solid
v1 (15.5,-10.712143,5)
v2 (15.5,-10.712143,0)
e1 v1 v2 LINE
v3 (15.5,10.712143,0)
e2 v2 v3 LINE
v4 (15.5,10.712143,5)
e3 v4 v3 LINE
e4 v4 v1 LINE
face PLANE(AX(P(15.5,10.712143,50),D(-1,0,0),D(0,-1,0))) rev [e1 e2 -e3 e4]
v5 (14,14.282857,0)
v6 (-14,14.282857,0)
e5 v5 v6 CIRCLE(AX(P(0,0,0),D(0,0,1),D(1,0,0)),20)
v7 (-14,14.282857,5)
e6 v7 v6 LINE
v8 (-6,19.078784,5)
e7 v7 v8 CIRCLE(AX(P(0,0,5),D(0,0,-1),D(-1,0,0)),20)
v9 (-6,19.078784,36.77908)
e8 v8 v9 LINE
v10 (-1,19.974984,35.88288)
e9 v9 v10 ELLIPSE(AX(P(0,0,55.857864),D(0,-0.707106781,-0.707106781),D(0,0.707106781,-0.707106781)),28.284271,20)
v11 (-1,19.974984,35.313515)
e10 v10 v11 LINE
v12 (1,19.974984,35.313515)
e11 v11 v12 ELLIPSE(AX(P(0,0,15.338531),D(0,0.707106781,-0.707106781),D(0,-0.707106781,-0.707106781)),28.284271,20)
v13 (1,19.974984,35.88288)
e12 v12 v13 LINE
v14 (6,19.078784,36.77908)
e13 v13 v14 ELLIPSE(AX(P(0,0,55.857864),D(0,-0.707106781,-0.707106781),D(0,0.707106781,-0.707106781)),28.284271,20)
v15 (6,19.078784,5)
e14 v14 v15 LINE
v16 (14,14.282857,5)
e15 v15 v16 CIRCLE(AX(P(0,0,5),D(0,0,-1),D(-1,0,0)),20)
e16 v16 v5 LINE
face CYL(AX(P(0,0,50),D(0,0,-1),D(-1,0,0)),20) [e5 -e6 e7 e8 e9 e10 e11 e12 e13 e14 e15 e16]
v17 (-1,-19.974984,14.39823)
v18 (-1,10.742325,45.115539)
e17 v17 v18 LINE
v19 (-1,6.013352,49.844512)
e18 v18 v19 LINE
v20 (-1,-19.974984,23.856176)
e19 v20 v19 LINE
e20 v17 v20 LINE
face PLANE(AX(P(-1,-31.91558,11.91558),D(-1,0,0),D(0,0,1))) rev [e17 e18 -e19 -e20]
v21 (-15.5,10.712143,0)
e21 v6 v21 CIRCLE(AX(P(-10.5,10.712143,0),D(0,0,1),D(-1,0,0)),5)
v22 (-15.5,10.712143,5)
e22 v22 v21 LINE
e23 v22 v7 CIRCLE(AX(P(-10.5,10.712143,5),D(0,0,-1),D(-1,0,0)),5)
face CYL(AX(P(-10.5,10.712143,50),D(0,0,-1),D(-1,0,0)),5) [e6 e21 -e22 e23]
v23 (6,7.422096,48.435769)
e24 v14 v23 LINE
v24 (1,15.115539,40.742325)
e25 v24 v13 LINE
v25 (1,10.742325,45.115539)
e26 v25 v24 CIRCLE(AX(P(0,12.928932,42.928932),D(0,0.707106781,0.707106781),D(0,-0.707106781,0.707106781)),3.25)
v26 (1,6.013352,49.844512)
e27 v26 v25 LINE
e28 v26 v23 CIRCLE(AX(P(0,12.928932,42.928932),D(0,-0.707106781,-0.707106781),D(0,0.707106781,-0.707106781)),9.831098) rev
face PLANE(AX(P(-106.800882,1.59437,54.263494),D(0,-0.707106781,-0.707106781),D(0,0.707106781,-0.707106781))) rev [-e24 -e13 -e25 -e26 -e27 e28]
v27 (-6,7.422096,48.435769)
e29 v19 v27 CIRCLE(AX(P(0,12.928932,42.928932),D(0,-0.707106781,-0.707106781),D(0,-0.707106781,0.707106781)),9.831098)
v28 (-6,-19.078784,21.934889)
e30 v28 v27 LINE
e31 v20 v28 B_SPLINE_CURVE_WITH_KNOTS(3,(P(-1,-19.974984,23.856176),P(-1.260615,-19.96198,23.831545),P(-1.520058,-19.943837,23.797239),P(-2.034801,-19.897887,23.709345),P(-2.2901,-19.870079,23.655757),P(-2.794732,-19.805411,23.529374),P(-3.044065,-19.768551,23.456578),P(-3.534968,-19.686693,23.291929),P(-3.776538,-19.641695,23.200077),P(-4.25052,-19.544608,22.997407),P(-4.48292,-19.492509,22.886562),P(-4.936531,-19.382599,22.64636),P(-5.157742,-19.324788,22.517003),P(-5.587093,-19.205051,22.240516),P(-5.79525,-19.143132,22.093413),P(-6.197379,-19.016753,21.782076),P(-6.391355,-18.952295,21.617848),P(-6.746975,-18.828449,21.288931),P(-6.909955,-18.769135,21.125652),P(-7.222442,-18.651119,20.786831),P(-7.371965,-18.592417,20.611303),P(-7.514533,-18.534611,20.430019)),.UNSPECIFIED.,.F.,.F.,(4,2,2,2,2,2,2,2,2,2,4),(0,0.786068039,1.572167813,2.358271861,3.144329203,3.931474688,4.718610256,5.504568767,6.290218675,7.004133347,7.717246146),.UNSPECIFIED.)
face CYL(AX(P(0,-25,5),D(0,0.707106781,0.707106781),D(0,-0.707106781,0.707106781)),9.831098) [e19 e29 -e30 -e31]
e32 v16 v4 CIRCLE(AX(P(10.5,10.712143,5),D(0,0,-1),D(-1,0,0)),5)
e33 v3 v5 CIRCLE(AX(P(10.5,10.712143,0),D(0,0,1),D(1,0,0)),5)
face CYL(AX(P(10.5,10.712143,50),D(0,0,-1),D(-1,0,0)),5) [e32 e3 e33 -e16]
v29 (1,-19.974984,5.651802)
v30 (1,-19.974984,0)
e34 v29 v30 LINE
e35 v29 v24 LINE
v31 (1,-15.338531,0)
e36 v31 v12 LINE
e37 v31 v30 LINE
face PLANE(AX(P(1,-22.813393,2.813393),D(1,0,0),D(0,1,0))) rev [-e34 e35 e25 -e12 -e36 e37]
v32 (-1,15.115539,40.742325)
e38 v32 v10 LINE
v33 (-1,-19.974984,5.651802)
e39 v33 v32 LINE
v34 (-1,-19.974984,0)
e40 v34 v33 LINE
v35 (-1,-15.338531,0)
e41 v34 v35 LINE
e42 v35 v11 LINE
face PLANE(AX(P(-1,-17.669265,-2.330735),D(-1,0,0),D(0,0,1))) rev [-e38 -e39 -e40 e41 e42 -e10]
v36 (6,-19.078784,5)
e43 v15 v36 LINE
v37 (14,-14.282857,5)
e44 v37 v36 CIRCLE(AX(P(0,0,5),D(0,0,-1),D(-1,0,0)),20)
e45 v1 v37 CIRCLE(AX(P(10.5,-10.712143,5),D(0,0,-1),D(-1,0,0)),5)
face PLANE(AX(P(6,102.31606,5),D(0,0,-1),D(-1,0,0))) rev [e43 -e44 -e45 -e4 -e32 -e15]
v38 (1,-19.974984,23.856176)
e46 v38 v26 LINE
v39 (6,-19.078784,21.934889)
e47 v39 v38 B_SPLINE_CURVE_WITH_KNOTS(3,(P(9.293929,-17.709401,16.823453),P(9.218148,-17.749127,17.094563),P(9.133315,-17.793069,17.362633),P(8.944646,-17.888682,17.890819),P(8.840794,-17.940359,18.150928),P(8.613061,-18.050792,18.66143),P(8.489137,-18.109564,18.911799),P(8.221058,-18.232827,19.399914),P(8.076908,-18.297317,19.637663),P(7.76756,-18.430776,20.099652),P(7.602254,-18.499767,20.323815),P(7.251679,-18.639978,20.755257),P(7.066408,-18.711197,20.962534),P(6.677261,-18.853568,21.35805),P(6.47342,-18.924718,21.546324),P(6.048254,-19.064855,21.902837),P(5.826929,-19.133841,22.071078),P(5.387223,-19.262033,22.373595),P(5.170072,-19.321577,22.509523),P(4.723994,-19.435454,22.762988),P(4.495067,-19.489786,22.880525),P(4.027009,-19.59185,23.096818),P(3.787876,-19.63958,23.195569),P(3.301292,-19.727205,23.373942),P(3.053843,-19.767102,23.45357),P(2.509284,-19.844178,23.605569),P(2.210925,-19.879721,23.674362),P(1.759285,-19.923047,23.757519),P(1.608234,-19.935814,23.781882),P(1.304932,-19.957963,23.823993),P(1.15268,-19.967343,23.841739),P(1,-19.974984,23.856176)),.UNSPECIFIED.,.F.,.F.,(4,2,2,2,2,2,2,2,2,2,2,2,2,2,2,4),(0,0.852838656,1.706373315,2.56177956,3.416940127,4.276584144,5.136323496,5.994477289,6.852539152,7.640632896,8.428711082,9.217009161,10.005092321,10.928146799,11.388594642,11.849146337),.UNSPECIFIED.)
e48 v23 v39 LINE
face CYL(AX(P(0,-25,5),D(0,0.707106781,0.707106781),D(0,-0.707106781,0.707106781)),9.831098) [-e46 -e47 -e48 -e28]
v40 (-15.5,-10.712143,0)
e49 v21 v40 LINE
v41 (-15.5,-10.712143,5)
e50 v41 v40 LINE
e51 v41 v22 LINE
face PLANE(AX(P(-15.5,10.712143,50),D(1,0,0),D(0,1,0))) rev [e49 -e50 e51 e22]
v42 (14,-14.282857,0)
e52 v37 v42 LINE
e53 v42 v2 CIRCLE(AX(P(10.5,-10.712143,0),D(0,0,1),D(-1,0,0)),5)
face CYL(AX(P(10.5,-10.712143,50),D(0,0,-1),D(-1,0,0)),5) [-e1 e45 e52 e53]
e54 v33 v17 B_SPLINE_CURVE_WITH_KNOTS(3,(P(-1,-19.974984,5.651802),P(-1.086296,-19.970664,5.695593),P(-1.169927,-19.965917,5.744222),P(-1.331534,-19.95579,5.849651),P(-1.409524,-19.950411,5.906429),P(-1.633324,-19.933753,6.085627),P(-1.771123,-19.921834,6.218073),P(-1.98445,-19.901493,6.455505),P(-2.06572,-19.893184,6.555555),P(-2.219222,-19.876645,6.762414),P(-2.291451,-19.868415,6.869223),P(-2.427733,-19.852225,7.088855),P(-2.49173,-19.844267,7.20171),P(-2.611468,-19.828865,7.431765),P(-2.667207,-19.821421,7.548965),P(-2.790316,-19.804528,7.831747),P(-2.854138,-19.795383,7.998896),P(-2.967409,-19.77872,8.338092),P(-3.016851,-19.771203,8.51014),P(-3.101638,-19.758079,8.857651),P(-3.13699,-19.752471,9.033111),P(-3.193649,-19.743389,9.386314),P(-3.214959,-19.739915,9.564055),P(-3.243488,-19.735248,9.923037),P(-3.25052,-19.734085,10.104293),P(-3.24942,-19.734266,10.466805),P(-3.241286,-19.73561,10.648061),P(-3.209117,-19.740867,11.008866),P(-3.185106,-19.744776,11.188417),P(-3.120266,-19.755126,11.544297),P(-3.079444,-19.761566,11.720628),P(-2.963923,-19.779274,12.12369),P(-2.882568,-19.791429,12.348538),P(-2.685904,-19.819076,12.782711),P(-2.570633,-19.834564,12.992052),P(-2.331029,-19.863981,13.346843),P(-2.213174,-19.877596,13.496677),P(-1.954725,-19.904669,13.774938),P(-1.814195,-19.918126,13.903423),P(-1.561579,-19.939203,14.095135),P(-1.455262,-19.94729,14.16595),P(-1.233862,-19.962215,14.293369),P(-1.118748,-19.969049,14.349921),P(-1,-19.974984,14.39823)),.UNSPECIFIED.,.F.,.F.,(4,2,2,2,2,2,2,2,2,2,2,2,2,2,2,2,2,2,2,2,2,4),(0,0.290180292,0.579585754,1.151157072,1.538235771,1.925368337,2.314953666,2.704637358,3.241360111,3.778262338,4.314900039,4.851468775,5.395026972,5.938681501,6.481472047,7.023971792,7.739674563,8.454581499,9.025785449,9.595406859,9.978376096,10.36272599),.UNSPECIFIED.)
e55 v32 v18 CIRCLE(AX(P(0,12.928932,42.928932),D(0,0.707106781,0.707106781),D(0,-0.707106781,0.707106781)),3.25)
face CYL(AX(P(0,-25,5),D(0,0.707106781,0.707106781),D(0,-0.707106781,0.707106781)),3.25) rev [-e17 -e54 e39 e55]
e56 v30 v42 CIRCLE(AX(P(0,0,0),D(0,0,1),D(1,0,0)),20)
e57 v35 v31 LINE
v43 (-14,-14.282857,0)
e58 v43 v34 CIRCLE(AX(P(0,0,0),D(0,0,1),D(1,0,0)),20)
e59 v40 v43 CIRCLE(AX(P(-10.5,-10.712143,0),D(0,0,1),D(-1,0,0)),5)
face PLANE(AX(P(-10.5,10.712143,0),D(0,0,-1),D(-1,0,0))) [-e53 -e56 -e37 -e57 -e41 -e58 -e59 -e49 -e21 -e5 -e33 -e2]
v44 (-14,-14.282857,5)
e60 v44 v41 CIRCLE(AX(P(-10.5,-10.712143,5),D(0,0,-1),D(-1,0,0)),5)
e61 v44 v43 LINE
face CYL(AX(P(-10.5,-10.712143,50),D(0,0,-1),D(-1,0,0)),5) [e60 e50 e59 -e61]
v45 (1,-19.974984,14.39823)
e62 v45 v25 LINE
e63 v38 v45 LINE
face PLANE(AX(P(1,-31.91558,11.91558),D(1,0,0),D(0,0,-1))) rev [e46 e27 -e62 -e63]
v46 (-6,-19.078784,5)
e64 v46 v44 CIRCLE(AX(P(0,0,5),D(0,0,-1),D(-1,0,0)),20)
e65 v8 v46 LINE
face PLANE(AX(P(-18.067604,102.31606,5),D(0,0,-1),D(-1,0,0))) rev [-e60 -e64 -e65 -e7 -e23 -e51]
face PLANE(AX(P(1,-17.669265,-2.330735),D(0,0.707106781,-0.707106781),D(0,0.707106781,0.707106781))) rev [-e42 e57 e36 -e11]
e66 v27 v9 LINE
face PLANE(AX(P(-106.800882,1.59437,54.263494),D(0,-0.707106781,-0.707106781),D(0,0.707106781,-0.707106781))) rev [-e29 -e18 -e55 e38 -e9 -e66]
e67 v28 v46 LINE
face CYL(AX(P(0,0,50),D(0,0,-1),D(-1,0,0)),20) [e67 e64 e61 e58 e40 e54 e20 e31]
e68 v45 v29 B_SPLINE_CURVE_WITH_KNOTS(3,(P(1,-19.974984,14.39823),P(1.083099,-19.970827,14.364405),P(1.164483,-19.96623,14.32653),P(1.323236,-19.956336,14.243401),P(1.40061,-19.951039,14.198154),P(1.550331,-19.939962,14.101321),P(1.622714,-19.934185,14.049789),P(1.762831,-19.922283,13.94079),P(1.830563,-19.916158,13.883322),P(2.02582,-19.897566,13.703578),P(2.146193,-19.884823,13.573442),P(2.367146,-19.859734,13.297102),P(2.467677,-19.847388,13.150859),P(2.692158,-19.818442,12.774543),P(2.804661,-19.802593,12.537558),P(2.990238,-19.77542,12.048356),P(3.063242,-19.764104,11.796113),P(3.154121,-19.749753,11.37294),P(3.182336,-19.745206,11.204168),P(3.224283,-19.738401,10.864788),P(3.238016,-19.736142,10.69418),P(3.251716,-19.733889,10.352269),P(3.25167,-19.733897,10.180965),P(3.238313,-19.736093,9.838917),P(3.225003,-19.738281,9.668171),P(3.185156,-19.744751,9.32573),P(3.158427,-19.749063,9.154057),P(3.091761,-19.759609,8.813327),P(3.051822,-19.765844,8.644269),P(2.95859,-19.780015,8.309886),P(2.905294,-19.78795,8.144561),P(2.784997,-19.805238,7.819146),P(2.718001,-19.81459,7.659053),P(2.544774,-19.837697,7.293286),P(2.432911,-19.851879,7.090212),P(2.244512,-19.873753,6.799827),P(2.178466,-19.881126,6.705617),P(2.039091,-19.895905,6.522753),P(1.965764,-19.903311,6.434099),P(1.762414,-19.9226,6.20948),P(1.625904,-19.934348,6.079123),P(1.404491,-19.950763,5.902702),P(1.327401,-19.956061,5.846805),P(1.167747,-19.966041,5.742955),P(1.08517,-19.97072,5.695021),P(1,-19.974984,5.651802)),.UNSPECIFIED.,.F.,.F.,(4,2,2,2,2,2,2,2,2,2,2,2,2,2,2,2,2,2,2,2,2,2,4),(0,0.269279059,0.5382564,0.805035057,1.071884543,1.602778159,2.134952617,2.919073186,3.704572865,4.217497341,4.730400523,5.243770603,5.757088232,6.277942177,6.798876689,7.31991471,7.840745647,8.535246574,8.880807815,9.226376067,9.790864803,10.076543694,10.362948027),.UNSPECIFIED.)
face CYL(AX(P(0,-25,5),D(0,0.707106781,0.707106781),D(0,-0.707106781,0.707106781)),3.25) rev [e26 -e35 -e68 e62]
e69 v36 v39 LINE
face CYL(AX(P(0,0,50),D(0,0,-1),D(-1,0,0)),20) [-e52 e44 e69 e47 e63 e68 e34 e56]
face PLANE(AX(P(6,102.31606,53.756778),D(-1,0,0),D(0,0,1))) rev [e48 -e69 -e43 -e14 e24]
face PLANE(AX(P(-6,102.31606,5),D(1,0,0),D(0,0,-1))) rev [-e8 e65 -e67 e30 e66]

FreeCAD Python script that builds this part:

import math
import FreeCAD as App
import Part
import Sketcher
Q = App.Units.Quantity

doc = App.newDocument("Part")
body = doc.addObject("PartDesign::Body", "Body")

# Sketch on XY plane
sketch1 = doc.addObject("Sketcher::SketchObject", "Sketch")
body.addObject(sketch1)
sketch1.AttachmentSupport = (doc.XY_Plane, [""])
sketch1.MapMode = "FlatFace"
sketch1.addGeometry([
    Part.LineSegment(App.Vector(-15.5, 10.7, 0), App.Vector(-15.5, -10.7, 0)),  # 0
    Part.ArcOfCircle(Part.Circle(App.Vector(-10.5, -10.7, 0), App.Vector(0, 0, 1), 5), math.radians(180), math.radians(226)),  # 1
    Part.ArcOfCircle(Part.Circle(App.Vector(0, 0, 0), App.Vector(0, 0, 1), 20), math.radians(-134), math.radians(-46)),  # 2
    Part.ArcOfCircle(Part.Circle(App.Vector(10.5, -10.7, 0), App.Vector(0, 0, 1), 5), math.radians(-46), math.radians(0)),  # 3
    Part.LineSegment(App.Vector(15.5, -10.7, 0), App.Vector(15.5, 10.7, 0)),  # 4
    Part.ArcOfCircle(Part.Circle(App.Vector(10.5, 10.7, 0), App.Vector(0, 0, 1), 5), math.radians(0), math.radians(46)),  # 5
    Part.ArcOfCircle(Part.Circle(App.Vector(0, 0, 0), App.Vector(0, 0, 1), 20), math.radians(46), math.radians(134)),  # 6
    Part.ArcOfCircle(Part.Circle(App.Vector(-10.5, 10.7, 0), App.Vector(0, 0, 1), 5), math.radians(134), math.radians(180)),  # 7
], False)
sketch1.addConstraint([
    Sketcher.Constraint("Tangent", 0, 2, 1, 1),
    Sketcher.Constraint("Tangent", 1, 2, 2, 1),
    Sketcher.Constraint("Tangent", 2, 2, 3, 1),
    Sketcher.Constraint("Tangent", 3, 2, 4, 1),
    Sketcher.Constraint("Tangent", 4, 2, 5, 1),
    Sketcher.Constraint("Tangent", 5, 2, 6, 1),
    Sketcher.Constraint("Tangent", 6, 2, 7, 1),
    Sketcher.Constraint("Tangent", 7, 2, 0, 1),
    Sketcher.Constraint("Vertical", 0),
    Sketcher.Constraint("Vertical", 4),
    Sketcher.Constraint("Coincident", 2, 3, -1, 1),
    Sketcher.Constraint("Coincident", 6, 3, -1, 1),
    Sketcher.Constraint("Equal", 1, 3),
    Sketcher.Constraint("Equal", 3, 5),
    Sketcher.Constraint("Equal", 2, 6),
    Sketcher.Constraint("Equal", 5, 7),
    Sketcher.Constraint("Horizontal", 1, 3, 3, 3),
    Sketcher.Constraint("Radius", 1, Q("5 mm")),
    Sketcher.Constraint("Radius", 2, Q("20 mm")),
    Sketcher.Constraint("DistanceX", 1, 2, -1, 1, Q("14 mm")),
])
pad1 = doc.addObject("PartDesign::Pad", "Pad")
body.addObject(pad1)
pad1.Profile = sketch1
pad1.Length = 50

# Sketch on XZ plane
sketch2 = doc.addObject("Sketcher::SketchObject", "Sketch001")
body.addObject(sketch2)
sketch2.AttachmentSupport = (doc.XZ_Plane, [""])
sketch2.MapMode = "FlatFace"
sketch2.addGeometry([
    Part.LineSegment(App.Vector(-6, 5, 0), App.Vector(-143, 5, 0)),  # 0
    Part.LineSegment(App.Vector(-143, 5, 0), App.Vector(-143, 254, 0)),  # 1
    Part.LineSegment(App.Vector(-143, 254, 0), App.Vector(144, 254, 0)),  # 2
    Part.LineSegment(App.Vector(144, 254, 0), App.Vector(144, 5, 0)),  # 3
    Part.LineSegment(App.Vector(144, 5, 0), App.Vector(6, 5, 0)),  # 4
    Part.LineSegment(App.Vector(6, 5, 0), App.Vector(6, 54, 0)),  # 5
    Part.LineSegment(App.Vector(6, 54, 0), App.Vector(-6, 54, 0)),  # 6
    Part.LineSegment(App.Vector(-6, 54, 0), App.Vector(-6, 5, 0)),  # 7
], False)
sketch2.addConstraint([
    Sketcher.Constraint("Coincident", 0, 2, 1, 1),
    Sketcher.Constraint("Coincident", 1, 2, 2, 1),
    Sketcher.Constraint("Coincident", 2, 2, 3, 1),
    Sketcher.Constraint("Coincident", 3, 2, 4, 1),
    Sketcher.Constraint("Coincident", 4, 2, 5, 1),
    Sketcher.Constraint("Coincident", 5, 2, 6, 1),
    Sketcher.Constraint("Coincident", 6, 2, 7, 1),
    Sketcher.Constraint("Coincident", 7, 2, 0, 1),
    Sketcher.Constraint("Horizontal", 0),
    Sketcher.Constraint("Vertical", 1),
    Sketcher.Constraint("Horizontal", 2),
    Sketcher.Constraint("Vertical", 3),
    Sketcher.Constraint("Horizontal", 4),
    Sketcher.Constraint("Vertical", 5),
    Sketcher.Constraint("Horizontal", 6),
    Sketcher.Constraint("Vertical", 7),
    Sketcher.Constraint("Symmetric", 4, 2, 7, 2, -2),
    Sketcher.Constraint("DistanceX", 6, 2, 6, 1, Q("12 mm")),
    Sketcher.Constraint("DistanceY", -1, 1, 0, 2, Q("5 mm")),
    Sketcher.Constraint("DistanceX", 0, 2, 0, 1, Q("136.514751 mm")),
    Sketcher.Constraint("DistanceY", 5, 1, 5, 2, Q("48.756778 mm")),
    Sketcher.Constraint("DistanceX", 2, 1, 2, 2, Q("286.810693 mm")),
    Sketcher.Constraint("DistanceY", 1, 1, 1, 2, Q("248.894293 mm")),
])
pocket1 = doc.addObject("PartDesign::Pocket", "Pocket")
body.addObject(pocket1)
pocket1.Profile = sketch2
pocket1.Type = "ThroughAll"
pocket1.Midplane = True

# Sketch on YZ plane
sketch3 = doc.addObject("Sketcher::SketchObject", "Sketch002")
body.addObject(sketch3)
sketch3.AttachmentSupport = (doc.YZ_Plane, [""])
sketch3.MapMode = "FlatFace"
sketch3.AttachmentOffset = App.Placement(App.Vector(0, 0, -6), App.Rotation())
sketch3.addGeometry([
    Part.LineSegment(App.Vector(114, -58, 0), App.Vector(-88, 144, 0)),
    Part.LineSegment(App.Vector(-88, 144, 0), App.Vector(91, 323, 0)),
    Part.LineSegment(App.Vector(91, 323, 0), App.Vector(293, 121, 0)),
    Part.LineSegment(App.Vector(293, 121, 0), App.Vector(114, -58, 0)),
], False)
sketch3.addConstraint([
    Sketcher.Constraint("Coincident", 0, 2, 1, 1),
    Sketcher.Constraint("Coincident", 1, 2, 2, 1),
    Sketcher.Constraint("Coincident", 2, 2, 3, 1),
    Sketcher.Constraint("Coincident", 3, 2, 0, 1),
    Sketcher.Constraint("Perpendicular", 0, 1),
    Sketcher.Constraint("Perpendicular", 1, 2),
    Sketcher.Constraint("Perpendicular", 2, 3),
    Sketcher.Constraint("Angle", 0, Q("135 deg")),
    Sketcher.Constraint("Distance", 0, Q("285.680721 mm")),
    Sketcher.Constraint("DistanceY", -1, 1, 0, 2, Q("143.928069 mm")),
    Sketcher.Constraint("DistanceX", -1, 1, 2, 2, Q("293.265719 mm")),
    Sketcher.Constraint("DistanceY", -1, 1, 2, 2, Q("121.250442 mm")),
])
pocket2 = doc.addObject("PartDesign::Pocket", "Pocket001")
body.addObject(pocket2)
pocket2.Profile = sketch3
pocket2.Type = "ThroughAll"
pocket2.Midplane = True

# Sketch on an angled plane
sketch4 = doc.addObject("Sketcher::SketchObject", "Sketch003")
body.addObject(sketch4)
sketch4.Placement = App.Placement(App.Vector(0, 27.928932, 27.928932), App.Rotation(App.Vector(1, 0, 0), App.Vector(0, 0.707106781, -0.707106781), App.Vector(0, 0.707106781, 0.707106781), "ZXY"))
sketch4.addGeometry([
    Part.LineSegment(App.Vector(-7.5, -27.6, 0), App.Vector(-7.5, -51.5, 0)),  # 0
    Part.LineSegment(App.Vector(-7.5, -51.5, 0), App.Vector(9.3, -51.5, 0)),  # 1
    Part.LineSegment(App.Vector(9.3, -51.5, 0), App.Vector(9.3, -24.4, 0)),  # 2
    Part.ArcOfCircle(Part.Circle(App.Vector(0, -21.2, 0), App.Vector(0, 0, 1), 9.8), math.radians(-84), math.radians(-19)),  # 3
    Part.LineSegment(App.Vector(1, -31, 0), App.Vector(1, -24.3, 0)),  # 4
    Part.ArcOfCircle(Part.Circle(App.Vector(0, -21.2, 0), App.Vector(0, 0, 1), 3.2), math.radians(-72), math.radians(72)),  # 5
    Part.LineSegment(App.Vector(1, -18.1, 0), App.Vector(1, -10.8, 0)),  # 6
    Part.LineSegment(App.Vector(1, -10.8, 0), App.Vector(-1, -10.8, 0)),  # 7
    Part.LineSegment(App.Vector(-1, -10.8, 0), App.Vector(-1, -18.1, 0)),  # 8
    Part.ArcOfCircle(Part.Circle(App.Vector(0, -21.2, 0), App.Vector(0, 0, 1), 3.2), math.radians(108), math.radians(252)),  # 9
    Part.LineSegment(App.Vector(-1, -24.3, 0), App.Vector(-1, -31, 0)),  # 10
    Part.ArcOfCircle(Part.Circle(App.Vector(0, -21.2, 0), App.Vector(0, 0, 1), 9.8), math.radians(-140), math.radians(-96)),  # 11
], False)
sketch4.addConstraint([
    Sketcher.Constraint("Coincident", 0, 2, 1, 1),
    Sketcher.Constraint("Coincident", 1, 2, 2, 1),
    Sketcher.Constraint("Coincident", 2, 2, 3, 2),
    Sketcher.Constraint("Coincident", 3, 1, 4, 1),
    Sketcher.Constraint("Coincident", 4, 2, 5, 1),
    Sketcher.Constraint("Coincident", 5, 2, 6, 1),
    Sketcher.Constraint("Coincident", 6, 2, 7, 1),
    Sketcher.Constraint("Coincident", 7, 2, 8, 1),
    Sketcher.Constraint("Coincident", 8, 2, 9, 1),
    Sketcher.Constraint("Coincident", 9, 2, 10, 1),
    Sketcher.Constraint("Coincident", 10, 2, 11, 2),
    Sketcher.Constraint("Coincident", 11, 1, 0, 1),
    Sketcher.Constraint("Vertical", 0),
    Sketcher.Constraint("Horizontal", 1),
    Sketcher.Constraint("Vertical", 2),
    Sketcher.Constraint("Vertical", 4),
    Sketcher.Constraint("Vertical", 6),
    Sketcher.Constraint("Horizontal", 7),
    Sketcher.Constraint("Vertical", 8),
    Sketcher.Constraint("Vertical", 10),
    Sketcher.Constraint("Coincident", 5, 3, 3, 3),
    Sketcher.Constraint("Coincident", 9, 3, 3, 3),
    Sketcher.Constraint("Coincident", 11, 3, 3, 3),
    Sketcher.Constraint("Equal", 5, 9),
    Sketcher.Constraint("Equal", 3, 11),
    Sketcher.Constraint("Symmetric", 5, 2, 8, 2, -2),
    Sketcher.Constraint("Horizontal", 4, 2, 9, 2),
    Sketcher.Constraint("Vertical", 4, 2, 5, 2),
    Sketcher.Constraint("DistanceX", 7, 2, 7, 1, Q("2 mm")),
    Sketcher.Constraint("Radius", 5, Q("3.25 mm")),
    Sketcher.Constraint("Radius", 3, Q("9.831098 mm")),
    Sketcher.Constraint("DistanceX", 1, 1, 1, 2, Q("16.808462 mm")),
    Sketcher.Constraint("DistanceY", 0, 2, 0, 1, Q("23.958538 mm")),
    Sketcher.Constraint("DistanceY", 2, 1, 2, 2, Q("27.092277 mm")),
    Sketcher.Constraint("DistanceY", 6, 1, 6, 2, Q("7.274895 mm")),
    Sketcher.Constraint("DistanceY", 3, 1, -1, 1, Q("30.993311 mm")),
])
pocket3 = doc.addObject("PartDesign::Pocket", "Pocket002")
body.addObject(pocket3)
pocket3.Profile = sketch4
pocket3.Type = "ThroughAll"

doc.recompute()
